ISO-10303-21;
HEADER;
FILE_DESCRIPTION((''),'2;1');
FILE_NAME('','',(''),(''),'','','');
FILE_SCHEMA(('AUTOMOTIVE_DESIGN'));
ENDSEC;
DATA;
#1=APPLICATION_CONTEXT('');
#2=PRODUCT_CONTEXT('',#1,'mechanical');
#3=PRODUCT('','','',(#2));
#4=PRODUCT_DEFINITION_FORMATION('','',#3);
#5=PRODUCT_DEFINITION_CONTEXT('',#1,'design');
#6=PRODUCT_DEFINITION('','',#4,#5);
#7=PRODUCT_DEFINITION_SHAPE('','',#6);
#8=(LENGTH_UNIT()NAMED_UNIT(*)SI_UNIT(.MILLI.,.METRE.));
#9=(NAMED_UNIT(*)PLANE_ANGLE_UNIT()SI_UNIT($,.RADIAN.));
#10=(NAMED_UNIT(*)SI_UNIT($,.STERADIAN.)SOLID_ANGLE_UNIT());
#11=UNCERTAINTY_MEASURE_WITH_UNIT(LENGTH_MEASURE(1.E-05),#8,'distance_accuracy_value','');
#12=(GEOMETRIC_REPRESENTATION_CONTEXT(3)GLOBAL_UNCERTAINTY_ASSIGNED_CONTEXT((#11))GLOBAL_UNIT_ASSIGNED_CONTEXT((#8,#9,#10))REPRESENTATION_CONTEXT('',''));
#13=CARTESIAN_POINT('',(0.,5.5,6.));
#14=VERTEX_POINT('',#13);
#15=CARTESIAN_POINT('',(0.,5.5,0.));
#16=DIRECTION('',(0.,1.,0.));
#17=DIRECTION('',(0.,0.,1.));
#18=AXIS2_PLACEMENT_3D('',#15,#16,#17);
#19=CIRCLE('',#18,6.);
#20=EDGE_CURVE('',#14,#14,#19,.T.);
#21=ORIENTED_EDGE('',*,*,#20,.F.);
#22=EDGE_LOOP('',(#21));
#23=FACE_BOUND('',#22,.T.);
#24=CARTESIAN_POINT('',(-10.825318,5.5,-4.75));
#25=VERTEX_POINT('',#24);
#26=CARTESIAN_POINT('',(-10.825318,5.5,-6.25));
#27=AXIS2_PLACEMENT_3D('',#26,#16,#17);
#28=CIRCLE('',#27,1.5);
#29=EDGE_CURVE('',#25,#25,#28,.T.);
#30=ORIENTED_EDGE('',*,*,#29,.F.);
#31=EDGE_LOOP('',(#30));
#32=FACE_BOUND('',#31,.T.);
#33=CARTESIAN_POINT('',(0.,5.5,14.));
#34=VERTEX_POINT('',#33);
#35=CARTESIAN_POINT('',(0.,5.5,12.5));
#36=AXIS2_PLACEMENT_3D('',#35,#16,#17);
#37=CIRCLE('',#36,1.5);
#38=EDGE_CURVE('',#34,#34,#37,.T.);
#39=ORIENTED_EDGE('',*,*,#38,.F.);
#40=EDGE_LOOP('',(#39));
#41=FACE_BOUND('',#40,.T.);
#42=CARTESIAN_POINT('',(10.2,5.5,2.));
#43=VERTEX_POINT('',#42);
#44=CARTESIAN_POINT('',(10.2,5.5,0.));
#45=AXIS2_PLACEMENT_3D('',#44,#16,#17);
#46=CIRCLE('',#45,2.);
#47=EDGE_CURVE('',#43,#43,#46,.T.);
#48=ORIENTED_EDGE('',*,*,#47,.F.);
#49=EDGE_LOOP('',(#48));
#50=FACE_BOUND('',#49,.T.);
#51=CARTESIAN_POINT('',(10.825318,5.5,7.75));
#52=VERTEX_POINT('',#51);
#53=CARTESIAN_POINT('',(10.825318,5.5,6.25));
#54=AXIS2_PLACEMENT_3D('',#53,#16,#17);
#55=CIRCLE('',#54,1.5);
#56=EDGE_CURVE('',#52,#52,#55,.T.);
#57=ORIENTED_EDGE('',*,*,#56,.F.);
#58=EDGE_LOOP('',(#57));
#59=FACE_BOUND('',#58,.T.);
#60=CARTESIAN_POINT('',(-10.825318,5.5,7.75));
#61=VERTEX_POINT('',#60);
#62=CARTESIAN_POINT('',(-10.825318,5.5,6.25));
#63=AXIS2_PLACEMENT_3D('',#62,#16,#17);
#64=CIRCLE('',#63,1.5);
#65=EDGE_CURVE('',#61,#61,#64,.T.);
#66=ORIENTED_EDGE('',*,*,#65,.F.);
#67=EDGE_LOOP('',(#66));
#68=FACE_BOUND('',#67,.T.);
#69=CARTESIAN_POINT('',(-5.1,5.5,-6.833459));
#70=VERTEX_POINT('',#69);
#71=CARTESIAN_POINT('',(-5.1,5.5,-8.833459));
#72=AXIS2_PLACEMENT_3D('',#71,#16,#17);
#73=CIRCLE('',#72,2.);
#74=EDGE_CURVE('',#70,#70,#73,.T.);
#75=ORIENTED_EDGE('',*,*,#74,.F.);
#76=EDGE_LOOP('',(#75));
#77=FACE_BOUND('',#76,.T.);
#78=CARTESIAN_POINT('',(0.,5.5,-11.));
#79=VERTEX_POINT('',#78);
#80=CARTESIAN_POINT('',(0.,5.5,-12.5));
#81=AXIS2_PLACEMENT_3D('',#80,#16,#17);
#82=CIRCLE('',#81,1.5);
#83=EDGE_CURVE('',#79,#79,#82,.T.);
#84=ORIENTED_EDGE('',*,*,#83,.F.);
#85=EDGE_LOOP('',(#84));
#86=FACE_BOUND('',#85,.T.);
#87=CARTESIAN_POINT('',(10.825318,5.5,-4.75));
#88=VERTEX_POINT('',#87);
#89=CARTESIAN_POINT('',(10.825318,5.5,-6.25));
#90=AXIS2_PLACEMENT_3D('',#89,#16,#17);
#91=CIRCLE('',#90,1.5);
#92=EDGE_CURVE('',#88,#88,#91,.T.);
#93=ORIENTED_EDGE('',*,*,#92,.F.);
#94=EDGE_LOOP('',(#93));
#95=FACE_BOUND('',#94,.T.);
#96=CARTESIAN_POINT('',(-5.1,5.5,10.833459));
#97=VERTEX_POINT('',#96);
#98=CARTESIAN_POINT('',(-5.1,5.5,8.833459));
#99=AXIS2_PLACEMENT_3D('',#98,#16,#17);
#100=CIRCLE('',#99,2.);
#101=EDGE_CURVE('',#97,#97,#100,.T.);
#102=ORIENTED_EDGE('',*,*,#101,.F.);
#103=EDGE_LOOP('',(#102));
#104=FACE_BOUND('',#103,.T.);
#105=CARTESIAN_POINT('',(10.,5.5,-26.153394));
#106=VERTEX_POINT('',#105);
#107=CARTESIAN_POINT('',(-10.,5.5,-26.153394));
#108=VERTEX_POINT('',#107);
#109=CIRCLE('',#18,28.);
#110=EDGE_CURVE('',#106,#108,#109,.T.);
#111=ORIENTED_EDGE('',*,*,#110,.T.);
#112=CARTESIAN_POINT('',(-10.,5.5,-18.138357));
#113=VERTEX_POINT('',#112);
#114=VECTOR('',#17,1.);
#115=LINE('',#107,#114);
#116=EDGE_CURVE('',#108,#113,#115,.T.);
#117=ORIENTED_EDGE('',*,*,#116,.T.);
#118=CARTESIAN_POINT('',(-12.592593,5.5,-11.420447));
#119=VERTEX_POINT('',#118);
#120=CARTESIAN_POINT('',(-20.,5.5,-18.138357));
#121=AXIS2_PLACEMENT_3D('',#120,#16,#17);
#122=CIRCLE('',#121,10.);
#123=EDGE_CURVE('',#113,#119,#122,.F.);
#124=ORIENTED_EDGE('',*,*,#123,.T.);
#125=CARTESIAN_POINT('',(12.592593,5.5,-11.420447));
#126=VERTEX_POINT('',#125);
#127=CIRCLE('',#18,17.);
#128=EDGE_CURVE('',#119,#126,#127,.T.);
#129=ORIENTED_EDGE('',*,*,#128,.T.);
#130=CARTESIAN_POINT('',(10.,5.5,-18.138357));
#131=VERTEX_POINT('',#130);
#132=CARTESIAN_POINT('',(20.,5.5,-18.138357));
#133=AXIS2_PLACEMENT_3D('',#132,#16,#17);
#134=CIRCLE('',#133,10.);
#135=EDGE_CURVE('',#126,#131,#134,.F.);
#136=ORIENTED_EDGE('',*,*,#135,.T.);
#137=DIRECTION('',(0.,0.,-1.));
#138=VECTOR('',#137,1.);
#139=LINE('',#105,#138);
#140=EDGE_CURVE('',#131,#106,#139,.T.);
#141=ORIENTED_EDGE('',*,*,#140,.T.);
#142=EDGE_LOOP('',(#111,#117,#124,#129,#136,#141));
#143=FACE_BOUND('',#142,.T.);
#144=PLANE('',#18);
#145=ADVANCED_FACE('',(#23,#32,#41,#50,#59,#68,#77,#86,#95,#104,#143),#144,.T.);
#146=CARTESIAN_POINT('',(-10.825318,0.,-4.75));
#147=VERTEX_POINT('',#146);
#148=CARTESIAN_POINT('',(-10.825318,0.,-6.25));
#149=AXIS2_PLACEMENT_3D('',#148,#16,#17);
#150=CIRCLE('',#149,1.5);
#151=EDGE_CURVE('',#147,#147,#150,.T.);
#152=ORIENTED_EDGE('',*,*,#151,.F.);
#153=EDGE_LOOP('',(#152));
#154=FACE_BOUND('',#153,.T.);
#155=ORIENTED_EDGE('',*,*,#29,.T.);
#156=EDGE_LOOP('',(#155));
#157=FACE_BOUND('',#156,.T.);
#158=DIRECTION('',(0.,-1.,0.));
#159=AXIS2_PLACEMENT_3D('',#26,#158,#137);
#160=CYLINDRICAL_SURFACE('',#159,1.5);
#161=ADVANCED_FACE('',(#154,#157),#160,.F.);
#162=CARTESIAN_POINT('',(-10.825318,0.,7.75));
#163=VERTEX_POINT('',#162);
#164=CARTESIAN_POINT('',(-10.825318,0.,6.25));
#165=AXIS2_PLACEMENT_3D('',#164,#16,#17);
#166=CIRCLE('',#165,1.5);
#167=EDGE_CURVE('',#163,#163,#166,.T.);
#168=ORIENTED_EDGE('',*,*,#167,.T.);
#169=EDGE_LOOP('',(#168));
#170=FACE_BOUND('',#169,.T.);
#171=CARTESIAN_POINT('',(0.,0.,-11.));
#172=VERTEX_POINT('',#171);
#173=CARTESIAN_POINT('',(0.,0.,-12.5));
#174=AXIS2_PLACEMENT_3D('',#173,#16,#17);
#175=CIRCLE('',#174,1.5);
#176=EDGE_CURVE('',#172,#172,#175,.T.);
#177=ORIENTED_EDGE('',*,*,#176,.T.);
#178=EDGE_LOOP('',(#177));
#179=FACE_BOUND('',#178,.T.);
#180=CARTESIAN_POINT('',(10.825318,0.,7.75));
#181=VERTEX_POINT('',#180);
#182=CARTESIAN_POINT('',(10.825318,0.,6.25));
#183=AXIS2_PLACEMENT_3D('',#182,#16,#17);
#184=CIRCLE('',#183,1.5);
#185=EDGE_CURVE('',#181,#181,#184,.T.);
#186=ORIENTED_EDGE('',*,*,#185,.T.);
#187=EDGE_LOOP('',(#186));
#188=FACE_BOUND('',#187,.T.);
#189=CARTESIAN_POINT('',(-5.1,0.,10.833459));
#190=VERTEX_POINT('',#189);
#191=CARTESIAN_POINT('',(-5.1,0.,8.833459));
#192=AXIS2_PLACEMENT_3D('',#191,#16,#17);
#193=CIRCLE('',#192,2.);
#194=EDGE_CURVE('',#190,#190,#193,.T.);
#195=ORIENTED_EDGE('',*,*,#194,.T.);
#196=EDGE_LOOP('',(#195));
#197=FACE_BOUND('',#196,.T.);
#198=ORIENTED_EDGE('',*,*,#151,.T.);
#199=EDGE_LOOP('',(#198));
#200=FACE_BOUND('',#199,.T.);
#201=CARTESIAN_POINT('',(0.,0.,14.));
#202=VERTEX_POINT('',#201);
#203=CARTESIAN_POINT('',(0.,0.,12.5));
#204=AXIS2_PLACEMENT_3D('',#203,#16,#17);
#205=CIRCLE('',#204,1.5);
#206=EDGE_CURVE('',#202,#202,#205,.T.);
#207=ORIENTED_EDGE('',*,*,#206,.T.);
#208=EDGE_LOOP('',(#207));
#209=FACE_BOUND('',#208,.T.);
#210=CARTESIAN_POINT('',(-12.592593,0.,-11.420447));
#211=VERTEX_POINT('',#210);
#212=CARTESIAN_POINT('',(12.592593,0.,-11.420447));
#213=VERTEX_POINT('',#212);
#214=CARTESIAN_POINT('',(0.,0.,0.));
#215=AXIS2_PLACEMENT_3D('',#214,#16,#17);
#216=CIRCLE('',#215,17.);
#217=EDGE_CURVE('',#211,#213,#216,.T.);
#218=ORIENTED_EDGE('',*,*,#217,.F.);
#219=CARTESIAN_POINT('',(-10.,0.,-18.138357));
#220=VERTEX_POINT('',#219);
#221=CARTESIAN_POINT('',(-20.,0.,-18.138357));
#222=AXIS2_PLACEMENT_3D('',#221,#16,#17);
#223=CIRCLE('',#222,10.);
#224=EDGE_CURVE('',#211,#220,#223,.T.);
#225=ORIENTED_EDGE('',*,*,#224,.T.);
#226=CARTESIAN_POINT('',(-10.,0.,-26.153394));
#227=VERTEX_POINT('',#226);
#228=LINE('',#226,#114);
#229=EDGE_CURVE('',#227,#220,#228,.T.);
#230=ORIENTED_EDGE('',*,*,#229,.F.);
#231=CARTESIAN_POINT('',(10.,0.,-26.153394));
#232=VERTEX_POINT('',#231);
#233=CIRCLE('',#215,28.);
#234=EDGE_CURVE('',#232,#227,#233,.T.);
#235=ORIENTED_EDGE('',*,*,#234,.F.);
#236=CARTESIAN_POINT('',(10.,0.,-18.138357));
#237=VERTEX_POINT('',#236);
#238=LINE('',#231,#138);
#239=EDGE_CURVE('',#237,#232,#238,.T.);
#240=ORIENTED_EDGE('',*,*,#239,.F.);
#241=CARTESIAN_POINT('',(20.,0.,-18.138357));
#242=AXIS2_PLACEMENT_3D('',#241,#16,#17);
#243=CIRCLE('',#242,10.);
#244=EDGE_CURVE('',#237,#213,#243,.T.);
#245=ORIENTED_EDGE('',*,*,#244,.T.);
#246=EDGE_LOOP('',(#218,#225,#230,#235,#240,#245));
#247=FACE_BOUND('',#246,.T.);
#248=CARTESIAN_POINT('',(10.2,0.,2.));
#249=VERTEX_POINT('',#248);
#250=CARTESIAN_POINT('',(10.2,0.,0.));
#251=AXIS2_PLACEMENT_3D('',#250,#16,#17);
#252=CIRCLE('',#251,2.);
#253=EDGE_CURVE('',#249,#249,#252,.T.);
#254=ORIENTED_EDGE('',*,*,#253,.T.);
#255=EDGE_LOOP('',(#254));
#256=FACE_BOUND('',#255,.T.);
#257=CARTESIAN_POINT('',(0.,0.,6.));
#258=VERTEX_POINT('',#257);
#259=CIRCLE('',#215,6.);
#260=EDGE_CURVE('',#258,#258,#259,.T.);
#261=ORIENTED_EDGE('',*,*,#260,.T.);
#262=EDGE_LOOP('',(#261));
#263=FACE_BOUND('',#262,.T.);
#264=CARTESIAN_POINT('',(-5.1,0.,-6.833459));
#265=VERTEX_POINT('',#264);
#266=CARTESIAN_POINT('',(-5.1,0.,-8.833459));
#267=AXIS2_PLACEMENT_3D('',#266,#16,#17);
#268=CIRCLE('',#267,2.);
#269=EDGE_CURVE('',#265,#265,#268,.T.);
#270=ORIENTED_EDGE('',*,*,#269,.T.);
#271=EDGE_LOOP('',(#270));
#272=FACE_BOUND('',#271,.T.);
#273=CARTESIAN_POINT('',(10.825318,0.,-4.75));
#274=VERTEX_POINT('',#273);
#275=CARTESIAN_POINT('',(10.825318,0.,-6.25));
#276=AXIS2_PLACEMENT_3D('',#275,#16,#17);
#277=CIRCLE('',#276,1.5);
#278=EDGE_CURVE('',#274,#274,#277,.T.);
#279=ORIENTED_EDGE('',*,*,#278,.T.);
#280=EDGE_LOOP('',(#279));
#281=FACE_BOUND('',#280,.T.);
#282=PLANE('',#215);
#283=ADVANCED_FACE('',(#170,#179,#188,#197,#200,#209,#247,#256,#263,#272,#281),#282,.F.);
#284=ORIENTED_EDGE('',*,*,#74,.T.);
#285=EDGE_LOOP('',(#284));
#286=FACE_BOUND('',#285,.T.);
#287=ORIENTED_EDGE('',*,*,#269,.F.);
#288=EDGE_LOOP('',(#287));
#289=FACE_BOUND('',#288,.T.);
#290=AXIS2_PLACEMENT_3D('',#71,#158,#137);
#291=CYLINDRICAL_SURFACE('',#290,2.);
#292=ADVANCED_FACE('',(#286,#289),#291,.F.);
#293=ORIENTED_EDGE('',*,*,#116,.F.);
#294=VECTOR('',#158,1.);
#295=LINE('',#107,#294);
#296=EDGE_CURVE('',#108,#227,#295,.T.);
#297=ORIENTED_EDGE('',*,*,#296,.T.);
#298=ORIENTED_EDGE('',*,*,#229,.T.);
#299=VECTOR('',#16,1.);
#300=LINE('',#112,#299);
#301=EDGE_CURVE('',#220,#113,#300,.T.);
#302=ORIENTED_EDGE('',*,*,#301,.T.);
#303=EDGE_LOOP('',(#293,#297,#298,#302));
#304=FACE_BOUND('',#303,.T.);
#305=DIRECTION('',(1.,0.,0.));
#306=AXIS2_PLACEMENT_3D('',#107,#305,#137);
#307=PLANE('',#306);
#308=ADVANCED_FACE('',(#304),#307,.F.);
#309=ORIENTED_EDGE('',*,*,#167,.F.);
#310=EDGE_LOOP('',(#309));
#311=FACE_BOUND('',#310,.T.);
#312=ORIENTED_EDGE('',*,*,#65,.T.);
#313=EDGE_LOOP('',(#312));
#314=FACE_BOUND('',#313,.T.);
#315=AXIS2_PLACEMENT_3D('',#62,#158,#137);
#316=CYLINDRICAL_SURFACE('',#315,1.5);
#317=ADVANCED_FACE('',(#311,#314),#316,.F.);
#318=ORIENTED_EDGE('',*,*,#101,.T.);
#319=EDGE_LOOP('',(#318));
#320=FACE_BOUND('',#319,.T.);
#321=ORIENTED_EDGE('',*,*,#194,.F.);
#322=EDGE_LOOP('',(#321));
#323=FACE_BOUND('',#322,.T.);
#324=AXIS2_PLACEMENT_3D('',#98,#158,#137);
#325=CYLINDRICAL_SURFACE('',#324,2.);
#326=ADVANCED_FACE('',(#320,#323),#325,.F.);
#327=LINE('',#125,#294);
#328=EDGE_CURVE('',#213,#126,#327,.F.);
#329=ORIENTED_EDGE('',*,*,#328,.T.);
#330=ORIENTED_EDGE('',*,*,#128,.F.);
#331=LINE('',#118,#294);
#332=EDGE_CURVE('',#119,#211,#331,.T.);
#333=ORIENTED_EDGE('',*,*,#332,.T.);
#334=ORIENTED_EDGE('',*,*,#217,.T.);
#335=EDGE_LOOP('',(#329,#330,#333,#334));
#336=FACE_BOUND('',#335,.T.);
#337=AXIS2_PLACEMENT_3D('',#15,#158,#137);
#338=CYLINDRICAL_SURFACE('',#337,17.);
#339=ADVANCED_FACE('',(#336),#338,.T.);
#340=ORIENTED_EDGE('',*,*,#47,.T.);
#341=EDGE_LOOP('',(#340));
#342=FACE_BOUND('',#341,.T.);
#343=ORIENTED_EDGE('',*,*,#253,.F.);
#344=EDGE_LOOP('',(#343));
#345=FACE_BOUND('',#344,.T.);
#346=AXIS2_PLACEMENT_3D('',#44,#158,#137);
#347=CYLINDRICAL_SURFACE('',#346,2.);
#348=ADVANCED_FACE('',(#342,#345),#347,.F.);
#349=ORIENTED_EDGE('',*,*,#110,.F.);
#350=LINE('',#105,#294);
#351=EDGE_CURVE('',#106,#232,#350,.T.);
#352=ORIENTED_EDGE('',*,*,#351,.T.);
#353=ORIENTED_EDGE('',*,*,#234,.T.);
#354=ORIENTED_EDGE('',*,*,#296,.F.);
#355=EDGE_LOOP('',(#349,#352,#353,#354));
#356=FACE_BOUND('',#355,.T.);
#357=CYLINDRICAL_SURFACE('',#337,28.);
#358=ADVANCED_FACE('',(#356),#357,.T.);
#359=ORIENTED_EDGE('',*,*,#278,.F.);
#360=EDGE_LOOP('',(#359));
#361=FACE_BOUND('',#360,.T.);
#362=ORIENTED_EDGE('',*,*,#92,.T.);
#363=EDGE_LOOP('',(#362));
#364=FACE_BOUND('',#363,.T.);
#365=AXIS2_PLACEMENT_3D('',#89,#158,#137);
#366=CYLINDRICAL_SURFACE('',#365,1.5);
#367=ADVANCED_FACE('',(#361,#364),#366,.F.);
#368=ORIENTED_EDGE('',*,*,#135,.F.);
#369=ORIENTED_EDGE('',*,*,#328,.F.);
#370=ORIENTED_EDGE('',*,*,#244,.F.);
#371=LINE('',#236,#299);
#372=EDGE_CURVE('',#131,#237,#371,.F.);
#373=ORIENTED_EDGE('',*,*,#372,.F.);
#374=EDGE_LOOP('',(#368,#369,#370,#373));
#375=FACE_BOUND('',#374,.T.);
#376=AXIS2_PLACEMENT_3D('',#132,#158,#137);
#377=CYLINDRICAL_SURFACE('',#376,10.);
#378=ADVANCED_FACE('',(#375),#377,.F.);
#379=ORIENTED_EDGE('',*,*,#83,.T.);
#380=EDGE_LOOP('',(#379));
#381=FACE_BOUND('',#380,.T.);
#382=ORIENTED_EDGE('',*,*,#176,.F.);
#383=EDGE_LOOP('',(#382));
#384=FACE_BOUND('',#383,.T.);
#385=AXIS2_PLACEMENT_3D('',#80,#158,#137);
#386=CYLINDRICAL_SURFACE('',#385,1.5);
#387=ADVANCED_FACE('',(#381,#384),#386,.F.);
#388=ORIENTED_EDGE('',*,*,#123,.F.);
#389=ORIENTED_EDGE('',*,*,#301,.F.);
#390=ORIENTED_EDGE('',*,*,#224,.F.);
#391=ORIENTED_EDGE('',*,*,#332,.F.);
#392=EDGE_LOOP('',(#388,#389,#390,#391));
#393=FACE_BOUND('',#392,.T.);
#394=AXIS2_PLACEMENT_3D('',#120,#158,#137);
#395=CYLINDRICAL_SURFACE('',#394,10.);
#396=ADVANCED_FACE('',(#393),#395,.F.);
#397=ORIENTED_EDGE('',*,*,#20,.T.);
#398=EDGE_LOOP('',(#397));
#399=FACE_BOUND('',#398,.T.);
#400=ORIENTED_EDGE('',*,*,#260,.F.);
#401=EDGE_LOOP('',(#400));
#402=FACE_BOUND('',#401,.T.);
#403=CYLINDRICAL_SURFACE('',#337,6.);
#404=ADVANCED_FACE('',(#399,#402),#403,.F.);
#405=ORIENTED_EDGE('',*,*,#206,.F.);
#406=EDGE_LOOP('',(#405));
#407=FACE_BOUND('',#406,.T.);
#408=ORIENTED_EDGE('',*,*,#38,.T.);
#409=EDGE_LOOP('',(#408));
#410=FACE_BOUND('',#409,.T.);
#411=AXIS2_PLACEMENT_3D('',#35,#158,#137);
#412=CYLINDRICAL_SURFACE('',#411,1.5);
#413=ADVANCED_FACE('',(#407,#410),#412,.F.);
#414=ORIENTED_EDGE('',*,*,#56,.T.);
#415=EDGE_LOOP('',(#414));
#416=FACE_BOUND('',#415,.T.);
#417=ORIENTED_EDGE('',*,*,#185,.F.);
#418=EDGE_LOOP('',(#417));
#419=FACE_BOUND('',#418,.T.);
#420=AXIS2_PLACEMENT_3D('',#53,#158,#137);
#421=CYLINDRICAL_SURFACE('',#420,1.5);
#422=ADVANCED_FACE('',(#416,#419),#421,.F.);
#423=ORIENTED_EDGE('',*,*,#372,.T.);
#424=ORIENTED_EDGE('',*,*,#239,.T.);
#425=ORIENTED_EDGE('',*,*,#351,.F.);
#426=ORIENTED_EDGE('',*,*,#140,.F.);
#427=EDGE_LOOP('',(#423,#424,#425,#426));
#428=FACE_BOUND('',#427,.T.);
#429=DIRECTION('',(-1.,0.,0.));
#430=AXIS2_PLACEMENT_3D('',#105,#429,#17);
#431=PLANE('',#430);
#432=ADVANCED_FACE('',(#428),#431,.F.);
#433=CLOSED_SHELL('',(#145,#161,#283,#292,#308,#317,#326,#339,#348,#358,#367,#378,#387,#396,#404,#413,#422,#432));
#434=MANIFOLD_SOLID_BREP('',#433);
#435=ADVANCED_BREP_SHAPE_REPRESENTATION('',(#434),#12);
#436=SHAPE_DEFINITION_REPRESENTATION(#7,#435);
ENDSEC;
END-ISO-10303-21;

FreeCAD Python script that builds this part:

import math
import FreeCAD as App
import Part
import Sketcher

V = App.Vector


def edges_at(feature, points):
    """Names of the edges that pass closest to the given points."""
    edges = feature.Shape.Edges
    near = lambda p: min(range(len(edges)), key=lambda i: edges[i].distToShape(Part.Vertex(*p))[0])
    return sorted({f"Edge{near(p) + 1}" for p in points})

doc = App.newDocument("Part")
params = doc.addObject("Spreadsheet::Sheet", "Params")
for row, (alias, value) in enumerate([
    ("sketch1_diameter", "4 mm"),
    ("sketch1_diameter2", "3 mm"),
    ("sketch1_diameter3", "12 mm"),
    ("sketch1_radius", "17 mm"),
    ("sketch1_radius2", "28 mm"),
    ("pad1_length", "5.5 mm"),
    ("fillet_radius", "10 mm"),
], start=1):
    params.set(f"A{row}", alias)
    params.set(f"B{row}", "=" + value)
    params.setAlias(f"B{row}", alias)

body = doc.addObject("PartDesign::Body", "Body")

# Sketch on XZ plane
sketch1 = doc.addObject("Sketcher::SketchObject", "Sketch")
body.addObject(sketch1)
sketch1.AttachmentSupport = (doc.XZ_Plane, [""])
sketch1.MapMode = "FlatFace"
sketch1.addGeometry(Part.LineSegment(V(-10, -26.2, 0), V(-10, -13.7, 0)), False)
sketch1.addGeometry(Part.ArcOfCircle(Part.Circle(V(0, 0, 0), V(0, 0, 1), 17), math.radians(-54), math.radians(234)), False)
sketch1.addGeometry(Part.LineSegment(V(10, -13.7, 0), V(10, -26.2, 0)), False)
sketch1.addGeometry(Part.ArcOfCircle(Part.Circle(V(0, 0, 0), V(0, 0, 1), 28), math.radians(-111), math.radians(-69)), False)
sketch1.addGeometry(Part.Circle(V(-5.1, 8.8, 0), V(0, 0, 1), 2), False)
sketch1.addGeometry(Part.Circle(V(-10.8, 6.2, 0), V(0, 0, 1), 1.5), False)
sketch1.addGeometry(Part.Circle(V(0, 12.5, 0), V(0, 0, 1), 1.5), False)
sketch1.addGeometry(Part.Circle(V(10.8, 6.2, 0), V(0, 0, 1), 1.5), False)
sketch1.addGeometry(Part.Circle(V(-10.8, -6.2, 0), V(0, 0, 1), 1.5), False)
sketch1.addGeometry(Part.Circle(V(-5.1, -8.8, 0), V(0, 0, 1), 2), False)
sketch1.addGeometry(Part.Circle(V(0, 0, 0), V(0, 0, 1), 6), False)
sketch1.addGeometry(Part.Circle(V(10.2, 0, 0), V(0, 0, 1), 2), False)
sketch1.addGeometry(Part.Circle(V(10.8, -6.2, 0), V(0, 0, 1), 1.5), False)
sketch1.addGeometry(Part.Circle(V(0, -12.5, 0), V(0, 0, 1), 1.5), False)
sketch1.addConstraint(Sketcher.Constraint("Coincident", 0, 2, 1, 2))
sketch1.addConstraint(Sketcher.Constraint("Coincident", 1, 1, 2, 1))
sketch1.addConstraint(Sketcher.Constraint("Coincident", 2, 2, 3, 2))
sketch1.addConstraint(Sketcher.Constraint("Coincident", 3, 1, 0, 1))
sketch1.addConstraint(Sketcher.Constraint("Vertical", 0))
sketch1.addConstraint(Sketcher.Constraint("Vertical", 2))
sketch1.addConstraint(Sketcher.Constraint("Coincident", 1, 3, -1, 1))
sketch1.addConstraint(Sketcher.Constraint("Coincident", 3, 3, -1, 1))
sketch1.addConstraint(Sketcher.Constraint("Coincident", 10, 3, -1, 1))
sketch1.addConstraint(Sketcher.Constraint("Equal", 5, 6))
sketch1.addConstraint(Sketcher.Constraint("Equal", 6, 7))
sketch1.addConstraint(Sketcher.Constraint("Equal", 7, 8))
sketch1.addConstraint(Sketcher.Constraint("Equal", 4, 9))
sketch1.addConstraint(Sketcher.Constraint("Equal", 9, 11))
sketch1.addConstraint(Sketcher.Constraint("Equal", 8, 12))
sketch1.addConstraint(Sketcher.Constraint("Equal", 12, 13))
sketch1.addConstraint(Sketcher.Constraint("Symmetric", 7, 3, 8, 3, -1, 1))
sketch1.addConstraint(Sketcher.Constraint("Symmetric", 5, 3, 12, 3, -1, 1))
sketch1.addConstraint(Sketcher.Constraint("Symmetric", 6, 3, 13, 3, -1, 1))
sketch1.addConstraint(Sketcher.Constraint("Symmetric", 5, 3, 7, 3, -2))
sketch1.addConstraint(Sketcher.Constraint("Symmetric", 4, 3, 9, 3, -1))
sketch1.addConstraint(Sketcher.Constraint("PointOnObject", 6, 3, -2))
sketch1.addConstraint(Sketcher.Constraint("PointOnObject", 11, 3, -1))
sketch1.addConstraint(Sketcher.Constraint("Horizontal", 0, 2, 1, 1))
sketch1.addConstraint(Sketcher.Constraint("Diameter", 4, 4.0))
sketch1.addConstraint(Sketcher.Constraint("Diameter", 5, 3.0))
sketch1.addConstraint(Sketcher.Constraint("Diameter", 10, 12.0))
sketch1.addConstraint(Sketcher.Constraint("Radius", 1, 17.0))
sketch1.addConstraint(Sketcher.Constraint("Radius", 3, 28.0))
sketch1.addConstraint(Sketcher.Constraint("DistanceX", 0, 2, -1, 1, 10.0))
sketch1.addConstraint(Sketcher.Constraint("DistanceX", 4, 3, -1, 1, 5.1))
sketch1.addConstraint(Sketcher.Constraint("DistanceY", -1, 1, 6, 3, 12.5))
sketch1.addConstraint(Sketcher.Constraint("DistanceX", -1, 1, 11, 3, 10.2))
sketch1.addConstraint(Sketcher.Constraint("DistanceY", 8, 3, 5, 3, 12.5))
sketch1.addConstraint(Sketcher.Constraint("DistanceY", -1, 1, 4, 3, 8.833459))
sketch1.addConstraint(Sketcher.Constraint("DistanceX", 5, 3, -1, 1, 10.825318))
sketch1.setExpression("Constraints[24]", "Params.sketch1_diameter")
sketch1.setExpression("Constraints[25]", "Params.sketch1_diameter2")
sketch1.setExpression("Constraints[26]", "Params.sketch1_diameter3")
sketch1.setExpression("Constraints[27]", "Params.sketch1_radius")
sketch1.setExpression("Constraints[28]", "Params.sketch1_radius2")
pad1 = doc.addObject("PartDesign::Pad", "Pad")
body.addObject(pad1)
pad1.Profile = sketch1
pad1.setExpression("Length", "Params.pad1_length")
pad1.Reversed = True
doc.recompute()

fillet = doc.addObject("PartDesign::Fillet", "Fillet")
body.addObject(fillet)
fillet.Base = (pad1, edges_at(pad1, [(10, 2.75, -13.748), (-10, 2.75, -13.748)]))
fillet.setExpression("Radius", "Params.fillet_radius")

doc.recompute()
